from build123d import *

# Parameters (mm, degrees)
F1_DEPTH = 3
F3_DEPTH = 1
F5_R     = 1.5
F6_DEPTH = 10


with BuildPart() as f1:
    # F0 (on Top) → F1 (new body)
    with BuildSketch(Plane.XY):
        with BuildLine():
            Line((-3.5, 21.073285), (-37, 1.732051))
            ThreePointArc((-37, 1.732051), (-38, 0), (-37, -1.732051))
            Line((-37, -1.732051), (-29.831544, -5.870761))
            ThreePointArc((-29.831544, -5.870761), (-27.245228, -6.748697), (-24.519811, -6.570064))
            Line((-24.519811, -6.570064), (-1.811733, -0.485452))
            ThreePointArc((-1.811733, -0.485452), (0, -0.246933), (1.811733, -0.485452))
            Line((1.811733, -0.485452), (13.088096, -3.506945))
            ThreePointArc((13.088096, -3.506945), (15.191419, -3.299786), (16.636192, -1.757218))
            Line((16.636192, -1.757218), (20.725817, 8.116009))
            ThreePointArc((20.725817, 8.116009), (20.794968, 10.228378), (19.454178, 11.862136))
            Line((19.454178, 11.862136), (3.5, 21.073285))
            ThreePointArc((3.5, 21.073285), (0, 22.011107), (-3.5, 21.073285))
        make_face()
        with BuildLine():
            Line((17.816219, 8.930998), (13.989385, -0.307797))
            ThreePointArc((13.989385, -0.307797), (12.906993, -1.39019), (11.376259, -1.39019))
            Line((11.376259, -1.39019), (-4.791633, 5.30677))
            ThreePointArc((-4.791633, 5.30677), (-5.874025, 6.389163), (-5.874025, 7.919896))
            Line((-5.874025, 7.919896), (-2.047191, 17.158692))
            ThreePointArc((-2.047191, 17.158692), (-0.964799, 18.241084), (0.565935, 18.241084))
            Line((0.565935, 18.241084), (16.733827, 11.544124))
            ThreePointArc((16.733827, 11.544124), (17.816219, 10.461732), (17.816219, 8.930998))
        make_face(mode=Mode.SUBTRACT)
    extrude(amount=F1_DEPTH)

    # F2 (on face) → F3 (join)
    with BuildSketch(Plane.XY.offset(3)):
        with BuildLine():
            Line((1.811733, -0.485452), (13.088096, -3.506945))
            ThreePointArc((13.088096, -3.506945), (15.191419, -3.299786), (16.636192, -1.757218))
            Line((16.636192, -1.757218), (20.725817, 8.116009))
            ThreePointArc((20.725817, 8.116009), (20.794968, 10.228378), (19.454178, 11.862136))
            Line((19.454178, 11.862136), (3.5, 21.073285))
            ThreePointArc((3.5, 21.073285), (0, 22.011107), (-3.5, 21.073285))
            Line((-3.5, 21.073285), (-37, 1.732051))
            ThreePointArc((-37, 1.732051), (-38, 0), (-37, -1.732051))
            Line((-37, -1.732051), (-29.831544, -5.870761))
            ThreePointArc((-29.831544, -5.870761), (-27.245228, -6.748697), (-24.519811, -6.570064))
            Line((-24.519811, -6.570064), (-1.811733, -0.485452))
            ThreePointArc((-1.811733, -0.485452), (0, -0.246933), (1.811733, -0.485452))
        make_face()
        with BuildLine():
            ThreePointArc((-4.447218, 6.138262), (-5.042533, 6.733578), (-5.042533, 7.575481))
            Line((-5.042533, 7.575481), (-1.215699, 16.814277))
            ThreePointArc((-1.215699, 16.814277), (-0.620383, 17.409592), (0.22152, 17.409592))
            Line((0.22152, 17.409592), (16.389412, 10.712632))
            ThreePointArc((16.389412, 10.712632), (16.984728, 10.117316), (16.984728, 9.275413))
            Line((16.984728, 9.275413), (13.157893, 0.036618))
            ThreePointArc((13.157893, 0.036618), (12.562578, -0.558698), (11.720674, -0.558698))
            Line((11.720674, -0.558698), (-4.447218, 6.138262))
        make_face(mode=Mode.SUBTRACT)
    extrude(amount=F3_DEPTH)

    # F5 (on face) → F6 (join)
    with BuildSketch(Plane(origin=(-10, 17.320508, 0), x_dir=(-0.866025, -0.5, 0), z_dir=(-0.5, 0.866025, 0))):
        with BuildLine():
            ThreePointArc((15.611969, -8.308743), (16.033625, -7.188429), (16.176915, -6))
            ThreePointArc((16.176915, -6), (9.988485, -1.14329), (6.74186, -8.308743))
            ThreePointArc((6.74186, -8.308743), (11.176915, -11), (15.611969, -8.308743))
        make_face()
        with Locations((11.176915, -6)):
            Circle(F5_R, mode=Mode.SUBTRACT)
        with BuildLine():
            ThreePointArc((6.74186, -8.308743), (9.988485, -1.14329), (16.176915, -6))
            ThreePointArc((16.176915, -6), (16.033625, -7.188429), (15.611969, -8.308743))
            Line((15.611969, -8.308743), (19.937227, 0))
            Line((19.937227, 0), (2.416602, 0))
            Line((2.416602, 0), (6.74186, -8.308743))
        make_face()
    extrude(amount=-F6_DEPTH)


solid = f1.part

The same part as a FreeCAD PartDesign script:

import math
import FreeCAD as App
import Part
import Sketcher
from FreeCAD import Vector
Q = App.Units.Quantity

doc = App.newDocument("Part")
body = doc.addObject("PartDesign::Body", "Body")

sketch1 = doc.addObject("Sketcher::SketchObject", "Sketch")
body.addObject(sketch1)
sketch1.AttachmentSupport = (doc.XY_Plane, [""])
sketch1.MapMode = "FlatFace"
sketch1.addGeometry(Part.LineSegment(Vector(-3.5, 21.073285, 0), Vector(-37, 1.732051, 0)), False)
sketch1.addGeometry(Part.ArcOfCircle(Part.Circle(Vector(-36, 0, 0), Vector(0, 0, 1), 2), math.radians(120.000006), math.radians(239.999994)), False)
sketch1.addGeometry(Part.LineSegment(Vector(-37, -1.732051, 0), Vector(-29.831544, -5.870761, 0)), False)
sketch1.addGeometry(Part.ArcOfCircle(Part.Circle(Vector(-26.331544, 0.191418, 0), Vector(0, 0, 1), 7.000001), math.radians(-119.999996), math.radians(-75.000006)), False)
sketch1.addGeometry(Part.LineSegment(Vector(-24.519811, -6.570064, 0), Vector(-1.811733, -0.485452, 0)), False)
sketch1.addGeometry(Part.ArcOfCircle(Part.Circle(Vector(0, -7.246937, 0), Vector(0, 0, 1), 7.000004), math.radians(75.000011), math.radians(104.999989)), False)
sketch1.addGeometry(Part.LineSegment(Vector(1.811733, -0.485452, 0), Vector(13.088096, -3.506945, 0)), False)
sketch1.addGeometry(Part.ArcOfCircle(Part.Circle(Vector(13.864553, -0.609167, 0), Vector(0, 0, 1), 3), math.radians(-105.000002), math.radians(-22.500006)), False)
sketch1.addGeometry(Part.LineSegment(Vector(16.636192, -1.757218, 0), Vector(20.725817, 8.116009, 0)), False)
sketch1.addGeometry(Part.ArcOfCircle(Part.Circle(Vector(17.954175, 9.264058, 0), Vector(0, 0, 1), 3.000002), math.radians(-22.499964), math.radians(59.99997)), False)
sketch1.addGeometry(Part.LineSegment(Vector(19.454178, 11.862136, 0), Vector(3.5, 21.073285, 0)), False)
sketch1.addGeometry(Part.ArcOfCircle(Part.Circle(Vector(0, 15.011106, 0), Vector(0, 0, 1), 7.000001), math.radians(60.000005), math.radians(119.999995)), False)
sketch1.addGeometry(Part.ArcOfCircle(Part.Circle(Vector(15.96846, 9.696365, 0), Vector(0, 0, 1), 2), math.radians(-22.500004), math.radians(67.499996)), False)
sketch1.addGeometry(Part.LineSegment(Vector(17.816219, 8.930998, 0), Vector(13.989385, -0.307797, 0)), False)
sketch1.addGeometry(Part.ArcOfCircle(Part.Circle(Vector(12.141626, 0.457568, 0), Vector(0, 0, 1), 1.999999), math.radians(-112.500012), math.radians(-22.499959)), False)
sketch1.addGeometry(Part.LineSegment(Vector(11.376259, -1.39019, 0), Vector(-4.791633, 5.30677, 0)), False)
sketch1.addGeometry(Part.ArcOfCircle(Part.Circle(Vector(-4.026265, 7.154529, 0), Vector(0, 0, 1), 2.000001), math.radians(157.500022), math.radians(247.499969)), False)
sketch1.addGeometry(Part.LineSegment(Vector(-5.874025, 7.919896, 0), Vector(-2.047191, 17.158692, 0)), False)
sketch1.addGeometry(Part.ArcOfCircle(Part.Circle(Vector(-0.199432, 16.393325, 0), Vector(0, 0, 1), 2), math.radians(67.499996), math.radians(157.499996)), False)
sketch1.addGeometry(Part.LineSegment(Vector(0.565935, 18.241084, 0), Vector(16.733827, 11.544124, 0)), False)
sketch1.addConstraint(Sketcher.Constraint("Tangent", 0, 2, 1, 1))
sketch1.addConstraint(Sketcher.Constraint("Tangent", 1, 2, 2, 1))
sketch1.addConstraint(Sketcher.Constraint("Tangent", 2, 2, 3, 1))
sketch1.addConstraint(Sketcher.Constraint("Tangent", 3, 2, 4, 1))
sketch1.addConstraint(Sketcher.Constraint("Tangent", 4, 2, 5, 2))
sketch1.addConstraint(Sketcher.Constraint("Tangent", 5, 1, 6, 1))
sketch1.addConstraint(Sketcher.Constraint("Tangent", 6, 2, 7, 1))
sketch1.addConstraint(Sketcher.Constraint("Tangent", 7, 2, 8, 1))
sketch1.addConstraint(Sketcher.Constraint("Tangent", 8, 2, 9, 1))
sketch1.addConstraint(Sketcher.Constraint("Tangent", 9, 2, 10, 1))
sketch1.addConstraint(Sketcher.Constraint("Tangent", 10, 2, 11, 1))
sketch1.addConstraint(Sketcher.Constraint("Tangent", 11, 2, 0, 1))
sketch1.addConstraint(Sketcher.Constraint("Tangent", 12, 1, 13, 1))
sketch1.addConstraint(Sketcher.Constraint("Tangent", 13, 2, 14, 2))
sketch1.addConstraint(Sketcher.Constraint("Tangent", 14, 1, 15, 1))
sketch1.addConstraint(Sketcher.Constraint("Tangent", 15, 2, 16, 2))
sketch1.addConstraint(Sketcher.Constraint("Tangent", 16, 1, 17, 1))
sketch1.addConstraint(Sketcher.Constraint("Tangent", 17, 2, 18, 2))
sketch1.addConstraint(Sketcher.Constraint("Tangent", 18, 1, 19, 1))
sketch1.addConstraint(Sketcher.Constraint("Tangent", 19, 2, 12, 2))
sketch1.addConstraint(Sketcher.Constraint("Equal", 3, 11))
sketch1.addConstraint(Sketcher.Constraint("Equal", 1, 12))
sketch1.addConstraint(Sketcher.Constraint("Equal", 12, 14))
sketch1.addConstraint(Sketcher.Constraint("Equal", 14, 16))
sketch1.addConstraint(Sketcher.Constraint("Equal", 16, 18))
sketch1.addConstraint(Sketcher.Constraint("Symmetric", 4, 2, 5, 1, -2))
sketch1.addConstraint(Sketcher.Constraint("Symmetric", 10, 2, 11, 2, -2))
sketch1.addConstraint(Sketcher.Constraint("Symmetric", 0, 2, 1, 2, -1))
sketch1.addConstraint(Sketcher.Constraint("Parallel", 8, 13))
sketch1.addConstraint(Sketcher.Constraint("Perpendicular", 13, 15))
sketch1.addConstraint(Sketcher.Constraint("Perpendicular", 15, 17))
sketch1.addConstraint(Sketcher.Constraint("Perpendicular", 17, 19))
sketch1.addConstraint(Sketcher.Constraint("Radius", 1, 2.0))
sketch1.addConstraint(Sketcher.Constraint("Radius", 3, 7.000001))
sketch1.addConstraint(Sketcher.Constraint("Radius", 7, 3.0))
sketch1.addConstraint(Sketcher.Constraint("Angle", 0, Q("-150 deg")))
sketch1.addConstraint(Sketcher.Constraint("Angle", 4, Q("15.000002 deg")))
sketch1.addConstraint(Sketcher.Constraint("Distance", 13, 10.0))
sketch1.addConstraint(Sketcher.Constraint("DistanceX", 1, 3, -1, 1, 36.0))
sketch1.addConstraint(Sketcher.Constraint("Angle", 8, Q("67.499998 deg")))
sketch1.addConstraint(Sketcher.Constraint("Distance", 15, 17.5))
sketch1.addConstraint(Sketcher.Constraint("Radius", 5, 7.000004))
sketch1.addConstraint(Sketcher.Constraint("Radius", 9, 3.000002))
sketch1.addConstraint(Sketcher.Constraint("DistanceY", 5, 3, 12, 3, 16.943302))
sketch1.addConstraint(Sketcher.Constraint("DistanceX", 15, 2, 4, 2, 2.9799))
sketch1.addConstraint(Sketcher.Constraint("DistanceY", 18, 1, 10, 2, 2.832201))
sketch1.addConstraint(Sketcher.Constraint("Distance", 6, 11.67415))
pad1 = doc.addObject("PartDesign::Pad", "Pad")
body.addObject(pad1)
pad1.Profile = sketch1
pad1.Length = 3

sketch2 = doc.addObject("Sketcher::SketchObject", "Sketch001")
body.addObject(sketch2)
sketch2.AttachmentSupport = (doc.XY_Plane, [""])
sketch2.MapMode = "FlatFace"
sketch2.AttachmentOffset = App.Placement(Vector(0, 0, 3), App.Rotation())
sketch2.addGeometry(Part.LineSegment(Vector(1.811733, -0.485452, 0), Vector(13.088096, -3.506945, 0)), False)
sketch2.addGeometry(Part.ArcOfCircle(Part.Circle(Vector(13.864553, -0.609167, 0), Vector(0, 0, 1), 3), math.radians(-105.000002), math.radians(-22.500006)), False)
sketch2.addGeometry(Part.LineSegment(Vector(16.636192, -1.757218, 0), Vector(20.725817, 8.116009, 0)), False)
sketch2.addGeometry(Part.ArcOfCircle(Part.Circle(Vector(17.954175, 9.264058, 0), Vector(0, 0, 1), 3.000002), math.radians(-22.499964), math.radians(59.99997)), False)
sketch2.addGeometry(Part.LineSegment(Vector(19.454178, 11.862136, 0), Vector(3.5, 21.073285, 0)), False)
sketch2.addGeometry(Part.ArcOfCircle(Part.Circle(Vector(0, 15.011106, 0), Vector(0, 0, 1), 7.000001), math.radians(60.000005), math.radians(119.999995)), False)
sketch2.addGeometry(Part.LineSegment(Vector(-3.5, 21.073285, 0), Vector(-37, 1.732051, 0)), False)
sketch2.addGeometry(Part.ArcOfCircle(Part.Circle(Vector(-36, 0, 0), Vector(0, 0, 1), 2), math.radians(120.000006), math.radians(239.999994)), False)
sketch2.addGeometry(Part.LineSegment(Vector(-37, -1.732051, 0), Vector(-29.831544, -5.870761, 0)), False)
sketch2.addGeometry(Part.ArcOfCircle(Part.Circle(Vector(-26.331544, 0.191418, 0), Vector(0, 0, 1), 7.000001), math.radians(-119.999996), math.radians(-75.000006)), False)
sketch2.addGeometry(Part.LineSegment(Vector(-24.519811, -6.570064, 0), Vector(-1.811733, -0.485452, 0)), False)
sketch2.addGeometry(Part.ArcOfCircle(Part.Circle(Vector(0, -7.246937, 0), Vector(0, 0, 1), 7.000004), math.radians(75.000011), math.radians(104.999989)), False)
sketch2.addGeometry(Part.LineSegment(Vector(11.720674, -0.558698, 0), Vector(-4.447218, 6.138262, 0)), False)
sketch2.addGeometry(Part.ArcOfCircle(Part.Circle(Vector(-4.026265, 7.154529, 0), Vector(0, 0, 1), 1.100001), math.radians(157.500028), math.radians(247.499931)), False)
sketch2.addGeometry(Part.LineSegment(Vector(-5.042533, 7.575481, 0), Vector(-1.215699, 16.814277, 0)), False)
sketch2.addGeometry(Part.ArcOfCircle(Part.Circle(Vector(-0.199432, 16.393324, 0), Vector(0, 0, 1), 1.100001), math.radians(67.500028), math.radians(157.499931)), False)
sketch2.addGeometry(Part.LineSegment(Vector(0.22152, 17.409592, 0), Vector(16.389412, 10.712632, 0)), False)
sketch2.addGeometry(Part.ArcOfCircle(Part.Circle(Vector(15.968461, 9.696364, 0), Vector(0, 0, 1), 1.1), math.radians(-22.499986), math.radians(67.500014)), False)
sketch2.addGeometry(Part.LineSegment(Vector(16.984728, 9.275413, 0), Vector(13.157893, 0.036618, 0)), False)
sketch2.addGeometry(Part.ArcOfCircle(Part.Circle(Vector(12.141626, 0.457568, 0), Vector(0, 0, 1), 1.099999), math.radians(-112.500035), math.radians(-22.499938)), False)
sketch2.addConstraint(Sketcher.Constraint("Tangent", 0, 2, 1, 1))
sketch2.addConstraint(Sketcher.Constraint("Tangent", 1, 2, 2, 1))
sketch2.addConstraint(Sketcher.Constraint("Tangent", 2, 2, 3, 1))
sketch2.addConstraint(Sketcher.Constraint("Tangent", 3, 2, 4, 1))
sketch2.addConstraint(Sketcher.Constraint("Tangent", 4, 2, 5, 1))
sketch2.addConstraint(Sketcher.Constraint("Tangent", 5, 2, 6, 1))
sketch2.addConstraint(Sketcher.Constraint("Tangent", 6, 2, 7, 1))
sketch2.addConstraint(Sketcher.Constraint("Tangent", 7, 2, 8, 1))
sketch2.addConstraint(Sketcher.Constraint("Tangent", 8, 2, 9, 1))
sketch2.addConstraint(Sketcher.Constraint("Tangent", 9, 2, 10, 1))
sketch2.addConstraint(Sketcher.Constraint("Tangent", 10, 2, 11, 2))
sketch2.addConstraint(Sketcher.Constraint("Tangent", 11, 1, 0, 1))
sketch2.addConstraint(Sketcher.Constraint("Tangent", 12, 2, 13, 2))
sketch2.addConstraint(Sketcher.Constraint("Tangent", 13, 1, 14, 1))
sketch2.addConstraint(Sketcher.Constraint("Tangent", 14, 2, 15, 2))
sketch2.addConstraint(Sketcher.Constraint("Tangent", 15, 1, 16, 1))
sketch2.addConstraint(Sketcher.Constraint("Tangent", 16, 2, 17, 2))
sketch2.addConstraint(Sketcher.Constraint("Tangent", 17, 1, 18, 1))
sketch2.addConstraint(Sketcher.Constraint("Tangent", 18, 2, 19, 2))
sketch2.addConstraint(Sketcher.Constraint("Tangent", 19, 1, 12, 1))
sketch2.addConstraint(Sketcher.Constraint("Equal", 5, 9))
sketch2.addConstraint(Sketcher.Constraint("Equal", 13, 15))
sketch2.addConstraint(Sketcher.Constraint("Equal", 15, 17))
sketch2.addConstraint(Sketcher.Constraint("Equal", 17, 19))
sketch2.addConstraint(Sketcher.Constraint("Symmetric", 4, 2, 5, 2, -2))
sketch2.addConstraint(Sketcher.Constraint("Symmetric", 10, 2, 11, 1, -2))
sketch2.addConstraint(Sketcher.Constraint("Symmetric", 6, 2, 7, 2, -1))
sketch2.addConstraint(Sketcher.Constraint("Perpendicular", 2, 12))
sketch2.addConstraint(Sketcher.Constraint("Perpendicular", 12, 14))
sketch2.addConstraint(Sketcher.Constraint("Perpendicular", 14, 16))
sketch2.addConstraint(Sketcher.Constraint("Perpendicular", 16, 18))
sketch2.addConstraint(Sketcher.Constraint("Radius", 1, 3.0))
sketch2.addConstraint(Sketcher.Constraint("Radius", 5, 7.000001))
sketch2.addConstraint(Sketcher.Constraint("Radius", 7, 2.0))
sketch2.addConstraint(Sketcher.Constraint("Radius", 13, 1.100001))
sketch2.addConstraint(Sketcher.Constraint("Angle", 0, Q("-15.000003 deg")))
sketch2.addConstraint(Sketcher.Constraint("Angle", 4, Q("150 deg")))
sketch2.addConstraint(Sketcher.Constraint("Distance", 14, 10.0))
sketch2.addConstraint(Sketcher.Constraint("DistanceX", 7, 3, -1, 1, 36.0))
sketch2.addConstraint(Sketcher.Constraint("Angle", 2, Q("67.499998 deg")))
sketch2.addConstraint(Sketcher.Constraint("Distance", 12, 17.5))
sketch2.addConstraint(Sketcher.Constraint("Radius", 3, 3.000002))
sketch2.addConstraint(Sketcher.Constraint("Radius", 11, 7.000004))
sketch2.addConstraint(Sketcher.Constraint("DistanceX", 14, 2, -1, 1, 1.215699))
sketch2.addConstraint(Sketcher.Constraint("DistanceY", 19, 1, -1, 1, 0.558698))
sketch2.addConstraint(Sketcher.Constraint("DistanceX", 18, 2, 1, 2, 3.478299))
sketch2.addConstraint(Sketcher.Constraint("Distance", 8, 8.27742))
pad2 = doc.addObject("PartDesign::Pad", "Pad001")
body.addObject(pad2)
pad2.Profile = sketch2
pad2.Length = 1

sketch3 = doc.addObject("Sketcher::SketchObject", "Sketch002")
body.addObject(sketch3)
sketch3.Placement = App.Placement(Vector(-10, 17.320508, 0), App.Rotation(Vector(-0.866025303, -0.500000175, 0), Vector(0, 0, 1), Vector(-0.500000175, 0.866025303, 0), "ZXY"))
sketch3.addGeometry(Part.ArcOfCircle(Part.Circle(Vector(11.176915, -6, 0), Vector(0, 0, 1), 5), math.radians(-152.499997), math.radians(-27.500003)), False)
sketch3.addGeometry(Part.LineSegment(Vector(15.611969, -8.308743, 0), Vector(19.937227, 0, 0)), False)
sketch3.addGeometry(Part.LineSegment(Vector(19.937227, 0, 0), Vector(2.416602, 0, 0)), False)
sketch3.addGeometry(Part.LineSegment(Vector(2.416602, 0, 0), Vector(6.74186, -8.308743, 0)), False)
sketch3.addGeometry(Part.Circle(Vector(11.176915, -6, 0), Vector(0, 0, 1), 1.5), False)
sketch3.addConstraint(Sketcher.Constraint("Tangent", 0, 2, 1, 1))
sketch3.addConstraint(Sketcher.Constraint("Coincident", 1, 2, 2, 1))
sketch3.addConstraint(Sketcher.Constraint("Coincident", 2, 2, 3, 1))
sketch3.addConstraint(Sketcher.Constraint("Tangent", 3, 2, 0, 1))
sketch3.addConstraint(Sketcher.Constraint("Horizontal", 2))
sketch3.addConstraint(Sketcher.Constraint("Coincident", 4, 3, 0, 3))
sketch3.addConstraint(Sketcher.Constraint("PointOnObject", 1, 2, -1))
sketch3.addConstraint(Sketcher.Constraint("Horizontal", 0, 2, 3, 2))
sketch3.addConstraint(Sketcher.Constraint("Diameter", 4, 3.0))
sketch3.addConstraint(Sketcher.Constraint("Radius", 0, 5.0))
sketch3.addConstraint(Sketcher.Constraint("DistanceY", 0, 3, -1, 1, 6.0))
sketch3.addConstraint(Sketcher.Constraint("Angle", 1, Q("62.499999 deg")))
sketch3.addConstraint(Sketcher.Constraint("DistanceX", -1, 1, 0, 2, 15.611969))
pad3 = doc.addObject("PartDesign::Pad", "Pad002")
body.addObject(pad3)
pad3.Profile = sketch3
pad3.Length = 10
pad3.Reversed = True

doc.recompute()
